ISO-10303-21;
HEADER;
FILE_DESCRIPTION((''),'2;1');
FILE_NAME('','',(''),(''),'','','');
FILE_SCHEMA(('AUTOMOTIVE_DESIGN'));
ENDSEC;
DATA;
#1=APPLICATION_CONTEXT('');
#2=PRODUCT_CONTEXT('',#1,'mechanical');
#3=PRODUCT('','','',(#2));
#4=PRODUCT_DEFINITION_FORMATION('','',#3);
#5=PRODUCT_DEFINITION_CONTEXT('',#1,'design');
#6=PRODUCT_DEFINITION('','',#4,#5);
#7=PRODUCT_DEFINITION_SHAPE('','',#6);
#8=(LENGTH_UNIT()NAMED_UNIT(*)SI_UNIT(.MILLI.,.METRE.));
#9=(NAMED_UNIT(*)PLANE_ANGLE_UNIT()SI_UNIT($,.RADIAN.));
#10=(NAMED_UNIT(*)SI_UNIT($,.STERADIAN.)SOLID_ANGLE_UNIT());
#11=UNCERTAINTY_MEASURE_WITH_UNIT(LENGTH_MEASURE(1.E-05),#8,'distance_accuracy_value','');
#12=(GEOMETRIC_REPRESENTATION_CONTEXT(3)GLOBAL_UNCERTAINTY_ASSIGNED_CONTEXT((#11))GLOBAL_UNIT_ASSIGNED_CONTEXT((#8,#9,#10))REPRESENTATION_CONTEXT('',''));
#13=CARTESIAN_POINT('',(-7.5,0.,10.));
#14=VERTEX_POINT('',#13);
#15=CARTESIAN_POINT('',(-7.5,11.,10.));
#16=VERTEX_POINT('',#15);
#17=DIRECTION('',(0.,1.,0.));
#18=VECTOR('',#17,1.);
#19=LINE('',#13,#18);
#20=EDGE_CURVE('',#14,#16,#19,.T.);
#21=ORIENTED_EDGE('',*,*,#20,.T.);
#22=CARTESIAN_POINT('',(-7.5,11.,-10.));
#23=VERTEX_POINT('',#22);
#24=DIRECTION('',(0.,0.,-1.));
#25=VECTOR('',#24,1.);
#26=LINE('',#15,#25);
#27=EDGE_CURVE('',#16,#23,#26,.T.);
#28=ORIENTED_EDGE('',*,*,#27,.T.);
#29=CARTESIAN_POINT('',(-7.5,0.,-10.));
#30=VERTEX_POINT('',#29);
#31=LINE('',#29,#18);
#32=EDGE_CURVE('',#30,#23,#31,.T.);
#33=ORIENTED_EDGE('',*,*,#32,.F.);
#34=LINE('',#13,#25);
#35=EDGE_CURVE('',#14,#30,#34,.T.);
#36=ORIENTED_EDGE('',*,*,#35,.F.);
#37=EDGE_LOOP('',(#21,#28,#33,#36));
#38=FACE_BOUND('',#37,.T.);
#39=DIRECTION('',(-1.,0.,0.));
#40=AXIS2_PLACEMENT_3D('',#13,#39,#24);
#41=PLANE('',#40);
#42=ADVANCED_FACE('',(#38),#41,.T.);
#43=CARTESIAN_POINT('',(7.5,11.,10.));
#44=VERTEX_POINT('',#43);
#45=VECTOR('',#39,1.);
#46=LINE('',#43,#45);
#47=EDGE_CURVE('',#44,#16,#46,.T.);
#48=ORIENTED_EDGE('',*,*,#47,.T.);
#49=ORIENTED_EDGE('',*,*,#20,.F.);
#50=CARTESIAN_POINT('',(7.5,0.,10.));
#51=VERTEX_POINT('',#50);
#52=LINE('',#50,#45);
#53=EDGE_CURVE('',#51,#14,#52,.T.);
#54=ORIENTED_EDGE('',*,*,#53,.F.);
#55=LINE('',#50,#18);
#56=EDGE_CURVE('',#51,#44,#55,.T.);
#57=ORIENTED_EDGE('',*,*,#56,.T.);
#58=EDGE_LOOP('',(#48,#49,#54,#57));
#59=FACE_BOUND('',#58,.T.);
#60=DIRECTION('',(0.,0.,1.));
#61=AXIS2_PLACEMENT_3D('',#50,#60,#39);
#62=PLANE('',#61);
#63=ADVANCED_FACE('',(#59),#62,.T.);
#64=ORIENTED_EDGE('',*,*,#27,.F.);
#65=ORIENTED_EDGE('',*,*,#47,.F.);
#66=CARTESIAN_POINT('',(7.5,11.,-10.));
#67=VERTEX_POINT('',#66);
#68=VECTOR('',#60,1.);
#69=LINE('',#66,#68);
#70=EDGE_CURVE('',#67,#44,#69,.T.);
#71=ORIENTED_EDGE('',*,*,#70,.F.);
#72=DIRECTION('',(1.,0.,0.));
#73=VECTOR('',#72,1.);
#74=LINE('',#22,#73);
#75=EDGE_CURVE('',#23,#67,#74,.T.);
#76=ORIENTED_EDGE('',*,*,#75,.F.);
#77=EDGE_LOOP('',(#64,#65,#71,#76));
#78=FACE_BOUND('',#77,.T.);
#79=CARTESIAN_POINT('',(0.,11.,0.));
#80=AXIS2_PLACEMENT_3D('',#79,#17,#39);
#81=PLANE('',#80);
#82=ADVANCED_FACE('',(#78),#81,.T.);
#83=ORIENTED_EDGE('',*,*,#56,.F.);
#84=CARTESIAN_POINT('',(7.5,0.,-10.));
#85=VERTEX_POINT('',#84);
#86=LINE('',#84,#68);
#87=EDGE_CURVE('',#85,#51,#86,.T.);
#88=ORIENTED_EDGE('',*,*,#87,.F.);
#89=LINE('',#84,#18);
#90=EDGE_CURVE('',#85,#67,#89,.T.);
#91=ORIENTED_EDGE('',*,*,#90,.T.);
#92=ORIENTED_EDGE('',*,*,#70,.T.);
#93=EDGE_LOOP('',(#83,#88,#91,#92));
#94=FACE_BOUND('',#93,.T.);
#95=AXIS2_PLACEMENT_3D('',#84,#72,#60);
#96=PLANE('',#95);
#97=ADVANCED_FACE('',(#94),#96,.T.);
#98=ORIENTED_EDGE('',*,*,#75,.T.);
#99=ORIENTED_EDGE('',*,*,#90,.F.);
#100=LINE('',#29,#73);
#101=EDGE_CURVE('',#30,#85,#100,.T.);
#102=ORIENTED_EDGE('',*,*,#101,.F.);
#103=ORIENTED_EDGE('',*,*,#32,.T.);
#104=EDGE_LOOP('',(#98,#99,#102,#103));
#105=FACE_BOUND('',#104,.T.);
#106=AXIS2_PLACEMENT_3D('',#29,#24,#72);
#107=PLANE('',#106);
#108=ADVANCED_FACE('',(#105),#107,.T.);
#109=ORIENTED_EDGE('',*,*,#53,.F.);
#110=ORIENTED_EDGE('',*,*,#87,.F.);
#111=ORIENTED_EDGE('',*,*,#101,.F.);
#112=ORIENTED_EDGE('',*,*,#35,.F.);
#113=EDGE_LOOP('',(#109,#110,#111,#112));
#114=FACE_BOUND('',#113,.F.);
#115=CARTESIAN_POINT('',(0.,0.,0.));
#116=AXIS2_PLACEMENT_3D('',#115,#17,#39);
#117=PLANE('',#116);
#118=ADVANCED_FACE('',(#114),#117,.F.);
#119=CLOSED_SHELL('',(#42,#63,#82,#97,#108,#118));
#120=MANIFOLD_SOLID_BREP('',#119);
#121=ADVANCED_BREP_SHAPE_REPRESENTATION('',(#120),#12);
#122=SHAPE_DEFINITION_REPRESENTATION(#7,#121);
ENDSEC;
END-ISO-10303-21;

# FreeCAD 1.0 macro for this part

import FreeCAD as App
import Part
import Sketcher
from FreeCAD import Vector


def add_polygon(sketch, points):
    """Adds a closed chain of lines whose ends are joined by coincident constraints."""
    first, n = sketch.GeometryCount, len(points)
    for a, b in zip(points, points[1:] + points[:1]):
        sketch.addGeometry(Part.LineSegment(App.Vector(*a, 0), App.Vector(*b, 0)), False)
    for i in range(n):
        sketch.addConstraint(Sketcher.Constraint("Coincident", first + i, 2, first + (i + 1) % n, 1))

doc = App.newDocument("Part")
body = doc.addObject("PartDesign::Body", "Body")

sketch1 = body.newObject("Sketcher::SketchObject", "Sketch")
sketch1.AttachmentSupport = (doc.getObject("XZ_Plane"), [""])
sketch1.MapMode = "FlatFace"
add_polygon(sketch1, [(-7.5, 10), (7.5, 10), (7.5, -10), (-7.5, -10)])
sketch1.addConstraint([
    Sketcher.Constraint("Horizontal", 0),
    Sketcher.Constraint("Vertical", 1),
    Sketcher.Constraint("Horizontal", 2),
    Sketcher.Constraint("Vertical", 3),
    Sketcher.Constraint("Symmetric", 0, 2, 2, 2, -1, 1),
    Sketcher.Constraint("DistanceX", 0, 1, 0, 2, 15.0),
    Sketcher.Constraint("DistanceY", 1, 2, 1, 1, 20.0),
])
pad1 = body.newObject("PartDesign::Pad", "Pad")
pad1.Profile = sketch1
pad1.Length = 11
pad1.Reversed = True

doc.recompute()
